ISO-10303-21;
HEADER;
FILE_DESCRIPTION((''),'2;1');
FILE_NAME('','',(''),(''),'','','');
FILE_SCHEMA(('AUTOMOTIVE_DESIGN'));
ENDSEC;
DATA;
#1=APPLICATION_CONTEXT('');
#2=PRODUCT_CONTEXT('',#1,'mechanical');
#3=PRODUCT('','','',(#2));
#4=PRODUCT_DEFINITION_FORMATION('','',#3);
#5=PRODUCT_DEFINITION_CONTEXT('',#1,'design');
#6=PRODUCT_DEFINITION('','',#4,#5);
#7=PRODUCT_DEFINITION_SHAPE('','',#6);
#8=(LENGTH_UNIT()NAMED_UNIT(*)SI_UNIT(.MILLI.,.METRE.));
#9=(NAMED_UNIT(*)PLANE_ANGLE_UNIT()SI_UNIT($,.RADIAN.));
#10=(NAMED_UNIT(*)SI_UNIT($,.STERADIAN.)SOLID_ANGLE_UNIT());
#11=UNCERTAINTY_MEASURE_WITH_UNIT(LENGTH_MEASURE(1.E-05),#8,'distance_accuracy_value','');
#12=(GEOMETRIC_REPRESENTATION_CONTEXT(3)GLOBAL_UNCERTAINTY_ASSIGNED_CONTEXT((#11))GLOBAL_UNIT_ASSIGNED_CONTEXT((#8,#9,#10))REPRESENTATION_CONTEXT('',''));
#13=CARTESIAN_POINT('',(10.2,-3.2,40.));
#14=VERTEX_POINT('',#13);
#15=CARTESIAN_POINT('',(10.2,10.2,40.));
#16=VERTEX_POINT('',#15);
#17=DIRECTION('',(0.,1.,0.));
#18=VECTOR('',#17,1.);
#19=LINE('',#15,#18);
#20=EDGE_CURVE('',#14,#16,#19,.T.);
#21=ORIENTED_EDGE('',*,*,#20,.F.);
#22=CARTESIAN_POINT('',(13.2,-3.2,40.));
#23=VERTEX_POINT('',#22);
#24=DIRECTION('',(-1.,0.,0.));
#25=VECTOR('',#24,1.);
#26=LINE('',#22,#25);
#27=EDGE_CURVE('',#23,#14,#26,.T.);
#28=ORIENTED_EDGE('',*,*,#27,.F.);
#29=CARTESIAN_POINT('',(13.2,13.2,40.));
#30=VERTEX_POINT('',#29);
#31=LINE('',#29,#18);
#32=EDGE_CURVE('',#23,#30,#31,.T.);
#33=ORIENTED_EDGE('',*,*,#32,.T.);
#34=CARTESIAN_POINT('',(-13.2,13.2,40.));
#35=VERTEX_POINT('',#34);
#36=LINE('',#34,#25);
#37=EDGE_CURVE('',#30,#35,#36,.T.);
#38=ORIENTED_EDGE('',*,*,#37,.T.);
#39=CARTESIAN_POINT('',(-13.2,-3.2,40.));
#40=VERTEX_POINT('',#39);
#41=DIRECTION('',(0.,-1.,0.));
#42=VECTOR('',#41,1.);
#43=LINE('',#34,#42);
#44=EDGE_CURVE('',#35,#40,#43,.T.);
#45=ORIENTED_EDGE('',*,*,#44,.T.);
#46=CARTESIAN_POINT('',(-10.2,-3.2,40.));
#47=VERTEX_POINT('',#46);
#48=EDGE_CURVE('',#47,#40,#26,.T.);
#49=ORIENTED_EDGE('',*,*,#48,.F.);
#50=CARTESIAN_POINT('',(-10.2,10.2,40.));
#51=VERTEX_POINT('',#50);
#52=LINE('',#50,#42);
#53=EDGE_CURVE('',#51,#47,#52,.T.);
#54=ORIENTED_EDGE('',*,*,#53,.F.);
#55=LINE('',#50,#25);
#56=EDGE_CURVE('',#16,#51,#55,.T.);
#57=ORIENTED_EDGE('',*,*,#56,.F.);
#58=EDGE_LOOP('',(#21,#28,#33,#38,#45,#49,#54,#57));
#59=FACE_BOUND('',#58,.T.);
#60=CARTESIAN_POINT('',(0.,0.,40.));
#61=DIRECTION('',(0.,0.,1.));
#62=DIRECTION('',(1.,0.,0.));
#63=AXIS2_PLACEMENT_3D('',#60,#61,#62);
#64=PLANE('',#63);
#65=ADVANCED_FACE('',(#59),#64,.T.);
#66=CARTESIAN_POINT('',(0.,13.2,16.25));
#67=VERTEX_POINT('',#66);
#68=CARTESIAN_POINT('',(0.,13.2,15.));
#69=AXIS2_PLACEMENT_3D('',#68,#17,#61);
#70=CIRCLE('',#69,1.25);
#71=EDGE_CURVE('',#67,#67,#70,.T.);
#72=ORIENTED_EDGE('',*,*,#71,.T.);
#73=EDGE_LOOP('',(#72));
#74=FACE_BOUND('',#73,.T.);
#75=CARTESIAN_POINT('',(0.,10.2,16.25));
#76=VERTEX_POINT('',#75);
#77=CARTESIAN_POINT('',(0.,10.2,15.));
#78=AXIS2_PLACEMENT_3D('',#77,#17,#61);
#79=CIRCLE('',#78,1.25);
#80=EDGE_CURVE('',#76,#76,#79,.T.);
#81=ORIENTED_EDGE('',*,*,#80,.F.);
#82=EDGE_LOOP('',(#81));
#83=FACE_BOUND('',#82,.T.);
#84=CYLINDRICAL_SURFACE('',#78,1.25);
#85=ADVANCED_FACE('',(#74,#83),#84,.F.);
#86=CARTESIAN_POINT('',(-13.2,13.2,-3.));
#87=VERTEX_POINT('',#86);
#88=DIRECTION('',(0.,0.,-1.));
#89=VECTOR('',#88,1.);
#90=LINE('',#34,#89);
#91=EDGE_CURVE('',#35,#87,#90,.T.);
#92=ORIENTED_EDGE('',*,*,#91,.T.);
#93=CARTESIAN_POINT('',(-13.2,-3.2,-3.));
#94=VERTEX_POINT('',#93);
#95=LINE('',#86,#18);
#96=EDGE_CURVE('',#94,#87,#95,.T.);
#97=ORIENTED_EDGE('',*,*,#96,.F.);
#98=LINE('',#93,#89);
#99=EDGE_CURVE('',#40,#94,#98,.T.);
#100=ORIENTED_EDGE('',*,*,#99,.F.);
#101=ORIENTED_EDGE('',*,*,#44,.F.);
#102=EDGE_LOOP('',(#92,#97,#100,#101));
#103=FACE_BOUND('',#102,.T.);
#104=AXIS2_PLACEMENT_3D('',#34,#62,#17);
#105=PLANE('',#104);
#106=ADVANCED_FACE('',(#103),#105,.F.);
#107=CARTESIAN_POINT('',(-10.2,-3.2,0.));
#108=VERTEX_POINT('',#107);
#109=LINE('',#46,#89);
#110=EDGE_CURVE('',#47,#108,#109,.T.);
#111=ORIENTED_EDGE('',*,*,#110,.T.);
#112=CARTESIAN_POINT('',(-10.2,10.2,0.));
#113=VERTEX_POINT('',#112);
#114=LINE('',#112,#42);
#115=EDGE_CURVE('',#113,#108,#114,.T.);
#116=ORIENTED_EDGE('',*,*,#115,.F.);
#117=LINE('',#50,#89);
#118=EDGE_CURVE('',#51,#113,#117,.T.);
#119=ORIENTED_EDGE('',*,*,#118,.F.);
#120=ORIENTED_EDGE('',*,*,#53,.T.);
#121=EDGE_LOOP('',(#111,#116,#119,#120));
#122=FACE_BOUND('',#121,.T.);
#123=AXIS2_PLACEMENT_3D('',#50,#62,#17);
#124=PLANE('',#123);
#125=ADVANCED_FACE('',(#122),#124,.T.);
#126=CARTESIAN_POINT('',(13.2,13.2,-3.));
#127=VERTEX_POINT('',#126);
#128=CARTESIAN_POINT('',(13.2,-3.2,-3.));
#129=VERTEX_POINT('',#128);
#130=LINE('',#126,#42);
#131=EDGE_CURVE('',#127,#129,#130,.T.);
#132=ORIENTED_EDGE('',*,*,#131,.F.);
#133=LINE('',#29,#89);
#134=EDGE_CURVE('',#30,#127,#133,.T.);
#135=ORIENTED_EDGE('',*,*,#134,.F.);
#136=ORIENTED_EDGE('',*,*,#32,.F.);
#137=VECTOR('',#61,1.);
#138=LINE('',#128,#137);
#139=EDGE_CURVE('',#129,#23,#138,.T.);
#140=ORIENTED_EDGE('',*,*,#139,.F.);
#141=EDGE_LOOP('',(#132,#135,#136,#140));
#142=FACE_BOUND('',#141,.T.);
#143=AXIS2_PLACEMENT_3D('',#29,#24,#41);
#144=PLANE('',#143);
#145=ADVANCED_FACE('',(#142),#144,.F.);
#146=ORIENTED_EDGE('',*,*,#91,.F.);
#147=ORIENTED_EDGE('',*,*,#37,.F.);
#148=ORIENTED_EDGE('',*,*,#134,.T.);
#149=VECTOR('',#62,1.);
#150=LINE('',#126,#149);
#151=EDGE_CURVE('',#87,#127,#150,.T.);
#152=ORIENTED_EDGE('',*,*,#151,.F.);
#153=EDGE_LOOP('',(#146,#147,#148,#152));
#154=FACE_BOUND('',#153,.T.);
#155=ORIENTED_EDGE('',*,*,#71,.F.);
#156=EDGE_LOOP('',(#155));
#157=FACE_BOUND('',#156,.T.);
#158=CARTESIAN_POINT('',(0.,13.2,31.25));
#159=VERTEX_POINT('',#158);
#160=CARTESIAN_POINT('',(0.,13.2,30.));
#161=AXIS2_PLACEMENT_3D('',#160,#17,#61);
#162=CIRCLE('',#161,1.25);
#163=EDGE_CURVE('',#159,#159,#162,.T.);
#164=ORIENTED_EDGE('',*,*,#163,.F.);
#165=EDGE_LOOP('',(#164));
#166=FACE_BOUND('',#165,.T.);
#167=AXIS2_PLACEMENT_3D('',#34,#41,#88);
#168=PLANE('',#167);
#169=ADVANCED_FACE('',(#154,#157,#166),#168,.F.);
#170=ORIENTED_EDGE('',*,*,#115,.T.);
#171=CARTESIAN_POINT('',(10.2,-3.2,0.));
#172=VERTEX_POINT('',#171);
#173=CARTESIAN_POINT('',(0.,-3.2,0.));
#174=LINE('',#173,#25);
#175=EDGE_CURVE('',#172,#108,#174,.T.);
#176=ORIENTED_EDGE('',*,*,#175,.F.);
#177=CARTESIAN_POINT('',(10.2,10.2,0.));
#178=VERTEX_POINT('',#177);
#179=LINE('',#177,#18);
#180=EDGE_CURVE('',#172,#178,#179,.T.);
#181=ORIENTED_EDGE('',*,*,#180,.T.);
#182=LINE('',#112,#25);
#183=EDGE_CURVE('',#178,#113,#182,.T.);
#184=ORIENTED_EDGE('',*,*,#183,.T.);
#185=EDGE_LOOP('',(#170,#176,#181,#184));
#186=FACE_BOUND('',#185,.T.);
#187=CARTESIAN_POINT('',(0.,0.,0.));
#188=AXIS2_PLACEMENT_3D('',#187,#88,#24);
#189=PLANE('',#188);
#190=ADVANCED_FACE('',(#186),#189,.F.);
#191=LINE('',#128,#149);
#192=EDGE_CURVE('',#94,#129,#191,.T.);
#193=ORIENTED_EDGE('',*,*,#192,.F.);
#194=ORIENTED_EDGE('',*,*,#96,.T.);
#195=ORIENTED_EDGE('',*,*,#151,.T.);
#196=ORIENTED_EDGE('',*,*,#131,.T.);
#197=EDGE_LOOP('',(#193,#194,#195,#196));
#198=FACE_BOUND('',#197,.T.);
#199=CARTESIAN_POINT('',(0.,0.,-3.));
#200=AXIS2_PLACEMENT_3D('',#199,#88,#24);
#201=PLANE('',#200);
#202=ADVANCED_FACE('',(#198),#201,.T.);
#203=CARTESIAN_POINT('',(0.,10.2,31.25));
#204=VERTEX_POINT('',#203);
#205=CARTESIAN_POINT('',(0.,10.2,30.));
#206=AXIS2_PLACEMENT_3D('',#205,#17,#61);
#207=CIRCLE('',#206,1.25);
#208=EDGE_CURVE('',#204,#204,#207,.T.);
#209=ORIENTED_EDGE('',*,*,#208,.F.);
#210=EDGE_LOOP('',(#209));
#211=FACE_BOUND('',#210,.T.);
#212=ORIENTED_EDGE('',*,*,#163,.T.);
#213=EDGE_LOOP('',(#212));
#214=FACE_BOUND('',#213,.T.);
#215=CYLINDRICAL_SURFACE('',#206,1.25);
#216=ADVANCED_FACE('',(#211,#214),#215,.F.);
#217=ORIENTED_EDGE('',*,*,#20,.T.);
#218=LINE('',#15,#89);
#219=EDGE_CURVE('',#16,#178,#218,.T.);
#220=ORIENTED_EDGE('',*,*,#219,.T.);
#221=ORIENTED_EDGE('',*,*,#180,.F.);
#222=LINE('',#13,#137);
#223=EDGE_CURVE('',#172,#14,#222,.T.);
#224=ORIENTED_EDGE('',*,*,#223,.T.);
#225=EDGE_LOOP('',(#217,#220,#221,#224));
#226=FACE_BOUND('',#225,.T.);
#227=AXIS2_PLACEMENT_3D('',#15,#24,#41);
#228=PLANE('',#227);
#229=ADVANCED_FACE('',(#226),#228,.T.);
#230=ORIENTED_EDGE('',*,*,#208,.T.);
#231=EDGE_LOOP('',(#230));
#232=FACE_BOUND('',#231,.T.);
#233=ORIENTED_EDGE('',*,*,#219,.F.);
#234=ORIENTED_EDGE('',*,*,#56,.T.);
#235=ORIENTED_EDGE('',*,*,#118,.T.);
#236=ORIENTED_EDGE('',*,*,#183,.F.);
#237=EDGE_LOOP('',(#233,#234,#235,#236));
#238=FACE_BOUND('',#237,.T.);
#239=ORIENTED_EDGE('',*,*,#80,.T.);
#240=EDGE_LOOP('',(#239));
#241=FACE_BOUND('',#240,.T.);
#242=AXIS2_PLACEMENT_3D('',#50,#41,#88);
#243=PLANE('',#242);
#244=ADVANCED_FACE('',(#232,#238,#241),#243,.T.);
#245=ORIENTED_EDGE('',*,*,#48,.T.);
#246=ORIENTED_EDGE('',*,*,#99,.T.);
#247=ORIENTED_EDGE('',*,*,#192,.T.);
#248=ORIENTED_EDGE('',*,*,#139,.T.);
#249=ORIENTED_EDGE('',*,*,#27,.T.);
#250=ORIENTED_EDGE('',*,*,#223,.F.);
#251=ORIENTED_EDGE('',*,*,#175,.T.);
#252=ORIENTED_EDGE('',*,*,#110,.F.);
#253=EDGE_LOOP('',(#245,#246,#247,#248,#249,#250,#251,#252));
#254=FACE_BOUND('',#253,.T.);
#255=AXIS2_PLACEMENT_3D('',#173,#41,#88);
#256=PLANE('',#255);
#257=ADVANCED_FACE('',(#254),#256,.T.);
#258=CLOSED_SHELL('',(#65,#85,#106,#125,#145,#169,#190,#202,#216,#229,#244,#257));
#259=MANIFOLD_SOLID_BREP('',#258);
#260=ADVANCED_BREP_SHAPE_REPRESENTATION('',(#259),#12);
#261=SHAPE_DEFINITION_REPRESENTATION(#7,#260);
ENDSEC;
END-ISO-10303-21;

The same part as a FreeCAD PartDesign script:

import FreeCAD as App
import Part
import Sketcher

doc = App.newDocument("Part")
body = doc.addObject("PartDesign::Body", "Body")

# Sketch on XY plane
sketch1 = body.newObject("Sketcher::SketchObject", "Sketch")
sketch1.AttachmentSupport = (doc.getObject("XY_Plane"), [""])
sketch1.MapMode = "FlatFace"
sketch1.addGeometry([
    Part.LineSegment(App.Vector(-13, 13, 0), App.Vector(-13, -13, 0)),  # 0
    Part.LineSegment(App.Vector(-13, -13, 0), App.Vector(13, -13, 0)),  # 1
    Part.LineSegment(App.Vector(13, -13, 0), App.Vector(13, 13, 0)),  # 2
    Part.LineSegment(App.Vector(13, 13, 0), App.Vector(-13, 13, 0)),  # 3
    Part.LineSegment(App.Vector(10, -10, 0), App.Vector(-10, -10, 0)),  # 4
    Part.LineSegment(App.Vector(-10, -10, 0), App.Vector(-10, 10, 0)),  # 5
    Part.LineSegment(App.Vector(-10, 10, 0), App.Vector(10, 10, 0)),  # 6
    Part.LineSegment(App.Vector(10, 10, 0), App.Vector(10, -10, 0)),  # 7
], False)
sketch1.addConstraint([
    Sketcher.Constraint("Coincident", 0, 2, 1, 1),
    Sketcher.Constraint("Coincident", 1, 2, 2, 1),
    Sketcher.Constraint("Coincident", 2, 2, 3, 1),
    Sketcher.Constraint("Coincident", 3, 2, 0, 1),
    Sketcher.Constraint("Coincident", 4, 2, 5, 1),
    Sketcher.Constraint("Coincident", 5, 2, 6, 1),
    Sketcher.Constraint("Coincident", 6, 2, 7, 1),
    Sketcher.Constraint("Coincident", 7, 2, 4, 1),
    Sketcher.Constraint("Vertical", 0),
    Sketcher.Constraint("Horizontal", 1),
    Sketcher.Constraint("Vertical", 2),
    Sketcher.Constraint("Horizontal", 3),
    Sketcher.Constraint("Horizontal", 4),
    Sketcher.Constraint("Vertical", 5),
    Sketcher.Constraint("Horizontal", 6),
    Sketcher.Constraint("Vertical", 7),
    Sketcher.Constraint("Symmetric", 0, 2, 2, 2, -1, 1),
    Sketcher.Constraint("Symmetric", 4, 2, 6, 2, -1, 1),
    Sketcher.Constraint("Equal", 3, 0),
    Sketcher.Constraint("Equal", 6, 5),
    Sketcher.Constraint("DistanceX", 1, 1, 1, 2, 26.4),
    Sketcher.Constraint("DistanceX", 4, 2, 4, 1, 20.4),
])
pad1 = body.newObject("PartDesign::Pad", "Pad")
pad1.Profile = sketch1
pad1.Length = 40

# Sketch on XY plane
sketch2 = body.newObject("Sketcher::SketchObject", "Sketch001")
sketch2.AttachmentSupport = (doc.getObject("XY_Plane"), [""])
sketch2.MapMode = "FlatFace"
sketch2.addGeometry([
    Part.LineSegment(App.Vector(13, 13, 0), App.Vector(13, -13, 0)),
    Part.LineSegment(App.Vector(13, -13, 0), App.Vector(-13, -13, 0)),
    Part.LineSegment(App.Vector(-13, -13, 0), App.Vector(-13, 13, 0)),
    Part.LineSegment(App.Vector(-13, 13, 0), App.Vector(13, 13, 0)),
], False)
sketch2.addConstraint([
    Sketcher.Constraint("Coincident", 0, 2, 1, 1),
    Sketcher.Constraint("Coincident", 1, 2, 2, 1),
    Sketcher.Constraint("Coincident", 2, 2, 3, 1),
    Sketcher.Constraint("Coincident", 3, 2, 0, 1),
    Sketcher.Constraint("Vertical", 0),
    Sketcher.Constraint("Horizontal", 1),
    Sketcher.Constraint("Vertical", 2),
    Sketcher.Constraint("Horizontal", 3),
    Sketcher.Constraint("Symmetric", 0, 2, 2, 2, -1, 1),
    Sketcher.Constraint("Equal", 3, 0),
    Sketcher.Constraint("DistanceX", 1, 2, 1, 1, 26.4),
])
pad2 = body.newObject("PartDesign::Pad", "Pad001")
pad2.Profile = sketch2
pad2.Length = 3
pad2.Reversed = True

# Sketch on XZ plane
sketch3 = body.newObject("Sketcher::SketchObject", "Sketch002")
sketch3.AttachmentSupport = (doc.getObject("XZ_Plane"), [""])
sketch3.MapMode = "FlatFace"
sketch3.AttachmentOffset = App.Placement(App.Vector(0, 0, 13.2), App.Rotation())
sketch3.addGeometry([
    Part.LineSegment(App.Vector(-10, 40, 0), App.Vector(-10, 0, 0)),
    Part.LineSegment(App.Vector(-10, 0, 0), App.Vector(10, 0, 0)),
    Part.LineSegment(App.Vector(10, 0, 0), App.Vector(10, 40, 0)),
    Part.LineSegment(App.Vector(10, 40, 0), App.Vector(-10, 40, 0)),
], False)
sketch3.addConstraint([
    Sketcher.Constraint("Coincident", 0, 2, 1, 1),
    Sketcher.Constraint("Coincident", 1, 2, 2, 1),
    Sketcher.Constraint("Coincident", 2, 2, 3, 1),
    Sketcher.Constraint("Coincident", 3, 2, 0, 1),
    Sketcher.Constraint("Vertical", 0),
    Sketcher.Constraint("Horizontal", 1),
    Sketcher.Constraint("Vertical", 2),
    Sketcher.Constraint("Horizontal", 3),
    Sketcher.Constraint("Symmetric", 0, 2, 1, 2, -1, 1),
    Sketcher.Constraint("DistanceY", 0, 2, 0, 1, 40.0),
    Sketcher.Constraint("DistanceX", 1, 1, 1, 2, 20.4),
])
pocket1 = body.newObject("PartDesign::Pocket", "Pocket")
pocket1.Profile = sketch3
pocket1.Length = 3

# Sketch on XZ plane
sketch4 = body.newObject("Sketcher::SketchObject", "Sketch003")
sketch4.AttachmentSupport = (doc.getObject("XZ_Plane"), [""])
sketch4.MapMode = "FlatFace"
sketch4.AttachmentOffset = App.Placement(App.Vector(0, 0, -13.2), App.Rotation())
sketch4.addGeometry([
    Part.Circle(App.Vector(0, 15, 0), App.Vector(0, 0, 1), 1.2),
    Part.Circle(App.Vector(0, 30, 0), App.Vector(0, 0, 1), 1.2),
], False)
sketch4.addConstraint([
    Sketcher.Constraint("Equal", 0, 1),
    Sketcher.Constraint("PointOnObject", 0, 3, -2),
    Sketcher.Constraint("PointOnObject", 1, 3, -2),
    Sketcher.Constraint("Diameter", 0, 2.5),
    Sketcher.Constraint("DistanceY", -1, 1, 0, 3, 15.0),
    Sketcher.Constraint("DistanceY", -1, 1, 1, 3, 30.0),
])
pocket2 = body.newObject("PartDesign::Pocket", "Pocket001")
pocket2.Profile = sketch4
pocket2.Length = 3
pocket2.Reversed = True

# Sketch on XZ plane
sketch5 = body.newObject("Sketcher::SketchObject", "Sketch004")
sketch5.AttachmentSupport = (doc.getObject("XZ_Plane"), [""])
sketch5.MapMode = "FlatFace"
sketch5.AttachmentOffset = App.Placement(App.Vector(0, 0, 13.2), App.Rotation())
sketch5.addGeometry([
    Part.LineSegment(App.Vector(-13, 40, 0), App.Vector(-13, -3, 0)),
    Part.LineSegment(App.Vector(-13, -3, 0), App.Vector(13, -3, 0)),
    Part.LineSegment(App.Vector(13, -3, 0), App.Vector(13, 40, 0)),
    Part.LineSegment(App.Vector(13, 40, 0), App.Vector(-13, 40, 0)),
], False)
sketch5.addConstraint([
    Sketcher.Constraint("Coincident", 0, 2, 1, 1),
    Sketcher.Constraint("Coincident", 1, 2, 2, 1),
    Sketcher.Constraint("Coincident", 2, 2, 3, 1),
    Sketcher.Constraint("Coincident", 3, 2, 0, 1),
    Sketcher.Constraint("Vertical", 0),
    Sketcher.Constraint("Horizontal", 1),
    Sketcher.Constraint("Vertical", 2),
    Sketcher.Constraint("Horizontal", 3),
    Sketcher.Constraint("DistanceY", 0, 2, 0, 1, 43.0),
    Sketcher.Constraint("DistanceX", 1, 1, 1, 2, 26.4),
    Sketcher.Constraint("DistanceY", 0, 2, -1, 1, 3.0),
    Sketcher.Constraint("DistanceX", 0, 2, -1, 1, 13.2),
])
pocket3 = body.newObject("PartDesign::Pocket", "Pocket002")
pocket3.Profile = sketch5
pocket3.Length = 10

doc.recompute()
